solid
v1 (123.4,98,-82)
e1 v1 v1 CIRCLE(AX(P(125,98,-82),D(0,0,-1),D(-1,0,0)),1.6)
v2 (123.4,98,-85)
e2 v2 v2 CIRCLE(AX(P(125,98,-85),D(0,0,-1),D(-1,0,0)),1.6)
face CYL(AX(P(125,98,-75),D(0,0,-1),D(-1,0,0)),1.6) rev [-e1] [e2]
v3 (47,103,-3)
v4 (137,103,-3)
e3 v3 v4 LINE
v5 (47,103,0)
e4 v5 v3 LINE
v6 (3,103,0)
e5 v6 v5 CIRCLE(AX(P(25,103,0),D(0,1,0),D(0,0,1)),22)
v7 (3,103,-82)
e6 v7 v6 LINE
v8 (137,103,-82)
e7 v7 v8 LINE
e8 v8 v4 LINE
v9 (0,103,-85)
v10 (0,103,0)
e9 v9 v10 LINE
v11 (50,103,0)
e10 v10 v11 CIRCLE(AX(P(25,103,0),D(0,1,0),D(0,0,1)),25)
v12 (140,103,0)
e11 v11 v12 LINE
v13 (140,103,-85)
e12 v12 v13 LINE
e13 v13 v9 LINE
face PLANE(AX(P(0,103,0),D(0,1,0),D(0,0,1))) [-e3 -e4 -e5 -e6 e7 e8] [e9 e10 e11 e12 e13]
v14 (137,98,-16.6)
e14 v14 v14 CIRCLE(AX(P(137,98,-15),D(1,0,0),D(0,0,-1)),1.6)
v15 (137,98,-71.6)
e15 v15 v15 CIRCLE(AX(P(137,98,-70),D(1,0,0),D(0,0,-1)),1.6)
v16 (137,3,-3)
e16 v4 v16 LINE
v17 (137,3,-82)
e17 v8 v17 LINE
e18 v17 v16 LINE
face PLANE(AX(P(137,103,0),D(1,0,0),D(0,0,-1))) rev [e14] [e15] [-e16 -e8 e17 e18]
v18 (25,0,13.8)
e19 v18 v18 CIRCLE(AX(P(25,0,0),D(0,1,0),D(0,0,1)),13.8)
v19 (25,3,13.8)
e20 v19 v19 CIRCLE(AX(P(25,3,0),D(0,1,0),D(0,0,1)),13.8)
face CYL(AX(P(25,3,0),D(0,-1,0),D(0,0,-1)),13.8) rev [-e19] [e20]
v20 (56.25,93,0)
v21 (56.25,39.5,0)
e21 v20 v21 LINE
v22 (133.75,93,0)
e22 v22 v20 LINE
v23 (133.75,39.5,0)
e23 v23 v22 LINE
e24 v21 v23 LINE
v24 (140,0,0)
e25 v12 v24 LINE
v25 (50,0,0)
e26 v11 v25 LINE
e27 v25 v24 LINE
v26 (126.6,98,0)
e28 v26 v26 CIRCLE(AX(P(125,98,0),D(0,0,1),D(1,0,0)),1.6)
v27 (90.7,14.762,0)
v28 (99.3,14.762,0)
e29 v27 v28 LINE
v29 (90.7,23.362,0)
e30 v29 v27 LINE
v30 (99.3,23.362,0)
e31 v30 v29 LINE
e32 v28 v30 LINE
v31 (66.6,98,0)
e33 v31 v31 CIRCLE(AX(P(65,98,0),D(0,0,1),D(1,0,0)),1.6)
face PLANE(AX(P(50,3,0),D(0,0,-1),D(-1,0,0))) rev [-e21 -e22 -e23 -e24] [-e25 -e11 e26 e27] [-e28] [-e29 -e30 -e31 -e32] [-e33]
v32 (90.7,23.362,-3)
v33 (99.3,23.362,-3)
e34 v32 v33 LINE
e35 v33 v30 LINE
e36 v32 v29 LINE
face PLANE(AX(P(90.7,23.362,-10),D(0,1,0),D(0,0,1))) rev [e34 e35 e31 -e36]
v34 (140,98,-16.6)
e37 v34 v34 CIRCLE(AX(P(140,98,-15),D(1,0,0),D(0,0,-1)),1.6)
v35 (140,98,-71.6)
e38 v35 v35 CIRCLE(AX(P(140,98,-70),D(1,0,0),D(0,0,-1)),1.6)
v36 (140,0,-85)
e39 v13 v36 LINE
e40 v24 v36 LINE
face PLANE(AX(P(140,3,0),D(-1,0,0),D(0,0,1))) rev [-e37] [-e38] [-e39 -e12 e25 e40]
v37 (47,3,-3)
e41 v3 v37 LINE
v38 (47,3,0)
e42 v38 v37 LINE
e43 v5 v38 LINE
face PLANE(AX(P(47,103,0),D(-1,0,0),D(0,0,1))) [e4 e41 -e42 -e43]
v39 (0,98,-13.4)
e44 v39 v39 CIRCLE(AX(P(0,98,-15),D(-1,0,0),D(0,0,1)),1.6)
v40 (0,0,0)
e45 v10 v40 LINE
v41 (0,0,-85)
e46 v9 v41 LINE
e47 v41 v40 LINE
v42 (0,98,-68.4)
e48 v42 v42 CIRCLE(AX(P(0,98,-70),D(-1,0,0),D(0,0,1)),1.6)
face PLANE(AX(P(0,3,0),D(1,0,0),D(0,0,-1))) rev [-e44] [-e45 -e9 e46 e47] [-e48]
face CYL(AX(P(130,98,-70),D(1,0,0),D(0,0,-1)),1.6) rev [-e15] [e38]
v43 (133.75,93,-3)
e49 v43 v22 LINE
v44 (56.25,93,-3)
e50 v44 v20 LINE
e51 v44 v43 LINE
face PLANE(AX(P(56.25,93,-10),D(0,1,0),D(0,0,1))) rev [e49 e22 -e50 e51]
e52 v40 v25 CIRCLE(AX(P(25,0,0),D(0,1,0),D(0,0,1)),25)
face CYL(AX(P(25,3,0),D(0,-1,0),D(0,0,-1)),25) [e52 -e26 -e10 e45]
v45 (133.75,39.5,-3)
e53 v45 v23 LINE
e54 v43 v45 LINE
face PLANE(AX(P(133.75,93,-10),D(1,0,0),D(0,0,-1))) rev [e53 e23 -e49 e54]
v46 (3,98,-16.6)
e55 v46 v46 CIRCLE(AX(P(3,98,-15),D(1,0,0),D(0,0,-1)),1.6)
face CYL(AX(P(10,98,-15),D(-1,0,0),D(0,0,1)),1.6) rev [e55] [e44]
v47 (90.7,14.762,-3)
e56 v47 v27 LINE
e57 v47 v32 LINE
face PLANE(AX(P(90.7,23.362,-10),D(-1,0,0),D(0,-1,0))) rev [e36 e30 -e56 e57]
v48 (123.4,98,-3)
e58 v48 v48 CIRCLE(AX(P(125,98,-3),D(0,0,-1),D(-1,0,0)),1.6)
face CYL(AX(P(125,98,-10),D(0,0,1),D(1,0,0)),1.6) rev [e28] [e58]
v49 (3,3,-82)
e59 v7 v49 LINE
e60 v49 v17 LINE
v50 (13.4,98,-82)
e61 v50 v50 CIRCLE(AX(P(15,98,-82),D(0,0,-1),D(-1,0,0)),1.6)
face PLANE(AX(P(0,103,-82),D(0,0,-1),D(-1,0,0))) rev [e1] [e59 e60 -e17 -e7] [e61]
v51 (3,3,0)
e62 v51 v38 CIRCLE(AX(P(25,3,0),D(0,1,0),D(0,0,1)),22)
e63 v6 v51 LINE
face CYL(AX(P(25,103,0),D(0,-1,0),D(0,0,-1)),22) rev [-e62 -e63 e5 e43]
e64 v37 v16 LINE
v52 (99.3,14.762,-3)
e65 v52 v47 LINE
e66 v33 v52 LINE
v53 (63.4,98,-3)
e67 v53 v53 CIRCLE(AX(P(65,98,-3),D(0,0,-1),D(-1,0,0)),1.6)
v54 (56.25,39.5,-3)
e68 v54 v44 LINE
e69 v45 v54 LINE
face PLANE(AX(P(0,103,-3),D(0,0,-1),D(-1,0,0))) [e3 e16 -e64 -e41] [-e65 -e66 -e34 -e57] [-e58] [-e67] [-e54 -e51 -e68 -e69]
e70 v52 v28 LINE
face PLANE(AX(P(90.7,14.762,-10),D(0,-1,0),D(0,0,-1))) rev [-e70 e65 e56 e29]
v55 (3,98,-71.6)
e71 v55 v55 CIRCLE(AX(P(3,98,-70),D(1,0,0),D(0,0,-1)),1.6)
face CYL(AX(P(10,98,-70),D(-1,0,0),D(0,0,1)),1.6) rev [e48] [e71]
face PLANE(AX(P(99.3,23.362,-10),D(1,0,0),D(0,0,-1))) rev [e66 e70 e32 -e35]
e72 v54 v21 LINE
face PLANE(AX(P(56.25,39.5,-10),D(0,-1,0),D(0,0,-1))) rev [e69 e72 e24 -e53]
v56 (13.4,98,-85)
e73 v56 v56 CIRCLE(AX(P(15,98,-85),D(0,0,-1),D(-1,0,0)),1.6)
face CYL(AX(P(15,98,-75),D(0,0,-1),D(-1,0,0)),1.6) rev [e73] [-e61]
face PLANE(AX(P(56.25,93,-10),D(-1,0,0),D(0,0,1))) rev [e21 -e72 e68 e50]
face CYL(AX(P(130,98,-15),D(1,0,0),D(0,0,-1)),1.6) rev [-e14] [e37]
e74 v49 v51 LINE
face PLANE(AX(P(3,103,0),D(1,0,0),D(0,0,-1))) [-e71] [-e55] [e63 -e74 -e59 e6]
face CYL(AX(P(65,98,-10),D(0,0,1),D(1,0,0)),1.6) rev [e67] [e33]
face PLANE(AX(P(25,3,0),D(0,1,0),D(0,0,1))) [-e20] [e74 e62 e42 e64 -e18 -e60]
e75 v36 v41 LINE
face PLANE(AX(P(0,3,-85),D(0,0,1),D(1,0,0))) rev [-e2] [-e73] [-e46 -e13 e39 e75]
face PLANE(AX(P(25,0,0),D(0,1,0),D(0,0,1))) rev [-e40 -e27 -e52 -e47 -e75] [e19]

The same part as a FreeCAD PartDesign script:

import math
import FreeCAD as App
import Part
import Sketcher
from FreeCAD import Vector
Q = App.Units.Quantity


def add_polygon(sketch, points):
    """Adds a closed chain of lines whose ends are joined by coincident constraints."""
    first, n = sketch.GeometryCount, len(points)
    for a, b in zip(points, points[1:] + points[:1]):
        sketch.addGeometry(Part.LineSegment(App.Vector(*a, 0), App.Vector(*b, 0)), False)
    for i in range(n):
        sketch.addConstraint(Sketcher.Constraint("Coincident", first + i, 2, first + (i + 1) % n, 1))

doc = App.newDocument("Part")
body = doc.addObject("PartDesign::Body", "Body")

# Sketch on XZ plane
sketch1 = body.newObject("Sketcher::SketchObject", "Sketch")
sketch1.AttachmentSupport = (doc.getObject("XZ_Plane"), [""])
sketch1.MapMode = "FlatFace"
sketch1.addGeometry([
    Part.LineSegment(Vector(50, 0, 0), Vector(140, 0, 0)),  # 0
    Part.LineSegment(Vector(140, 0, 0), Vector(140, -85, 0)),  # 1
    Part.LineSegment(Vector(140, -85, 0), Vector(0, -85, 0)),  # 2
    Part.LineSegment(Vector(0, -85, 0), Vector(0, 0, 0)),  # 3
    Part.ArcOfCircle(Part.Circle(Vector(25, 0, 0), Vector(0, 0, 1), 25), math.radians(0), math.radians(180)),  # 4
    Part.Circle(Vector(25, 0, 0), Vector(0, 0, 1), 14),  # 5
], False)
sketch1.addConstraint([
    Sketcher.Constraint("Coincident", 0, 2, 1, 1),
    Sketcher.Constraint("Coincident", 1, 2, 2, 1),
    Sketcher.Constraint("Coincident", 2, 2, 3, 1),
    Sketcher.Constraint("Tangent", 3, 2, 4, 2),
    Sketcher.Constraint("Coincident", 4, 1, 0, 1),
    Sketcher.Constraint("Horizontal", 0),
    Sketcher.Constraint("Vertical", 1),
    Sketcher.Constraint("Horizontal", 2),
    Sketcher.Constraint("Vertical", 3),
    Sketcher.Constraint("Coincident", 3, 2, -1, 1),
    Sketcher.Constraint("Coincident", 5, 3, 4, 3),
    Sketcher.Constraint("PointOnObject", 0, 2, -1),
    Sketcher.Constraint("Radius", 4, Q("25 mm")),
    Sketcher.Constraint("Diameter", 5, Q("27.6 mm")),
    Sketcher.Constraint("DistanceX", 0, 1, 0, 2, Q("90 mm")),
    Sketcher.Constraint("DistanceY", 1, 2, 1, 1, Q("85 mm")),
])
pad1 = body.newObject("PartDesign::Pad", "Pad")
pad1.Profile = sketch1
pad1.Length = 3
pad1.Reversed = True

# Sketch on XZ plane
sketch2 = body.newObject("Sketcher::SketchObject", "Sketch001")
sketch2.AttachmentSupport = (doc.getObject("XZ_Plane"), [""])
sketch2.MapMode = "FlatFace"
sketch2.AttachmentOffset = App.Placement(Vector(0, 0, -3), App.Rotation())
sketch2.addGeometry([
    Part.LineSegment(Vector(140, -85, 0), Vector(0, -85, 0)),  # 0
    Part.LineSegment(Vector(0, -85, 0), Vector(0, 0, 0)),  # 1
    Part.ArcOfCircle(Part.Circle(Vector(25, 0, 0), Vector(0, 0, 1), 25), math.radians(0), math.radians(180)),  # 2
    Part.LineSegment(Vector(50, 0, 0), Vector(140, 0, 0)),  # 3
    Part.LineSegment(Vector(140, 0, 0), Vector(140, -85, 0)),  # 4
    Part.ArcOfCircle(Part.Circle(Vector(25, 0, 0), Vector(0, 0, 1), 22), math.radians(0), math.radians(180)),  # 5
    Part.LineSegment(Vector(3, 0, 0), Vector(3, -82, 0)),  # 6
    Part.LineSegment(Vector(3, -82, 0), Vector(137, -82, 0)),  # 7
    Part.LineSegment(Vector(137, -82, 0), Vector(137, -3, 0)),  # 8
    Part.LineSegment(Vector(137, -3, 0), Vector(47, -3, 0)),  # 9
    Part.LineSegment(Vector(47, -3, 0), Vector(47, 0, 0)),  # 10
], False)
sketch2.addConstraint([
    Sketcher.Constraint("Coincident", 0, 2, 1, 1),
    Sketcher.Constraint("Tangent", 1, 2, 2, 2),
    Sketcher.Constraint("Coincident", 2, 1, 3, 1),
    Sketcher.Constraint("Coincident", 3, 2, 4, 1),
    Sketcher.Constraint("Coincident", 4, 2, 0, 1),
    Sketcher.Constraint("Tangent", 5, 2, 6, 1),
    Sketcher.Constraint("Coincident", 6, 2, 7, 1),
    Sketcher.Constraint("Coincident", 7, 2, 8, 1),
    Sketcher.Constraint("Coincident", 8, 2, 9, 1),
    Sketcher.Constraint("Coincident", 9, 2, 10, 1),
    Sketcher.Constraint("Tangent", 10, 2, 5, 1),
    Sketcher.Constraint("Horizontal", 0),
    Sketcher.Constraint("Vertical", 1),
    Sketcher.Constraint("Horizontal", 3),
    Sketcher.Constraint("Vertical", 4),
    Sketcher.Constraint("Vertical", 6),
    Sketcher.Constraint("Horizontal", 7),
    Sketcher.Constraint("Vertical", 8),
    Sketcher.Constraint("Horizontal", 9),
    Sketcher.Constraint("Vertical", 10),
    Sketcher.Constraint("Coincident", 1, 2, -1, 1),
    Sketcher.Constraint("Coincident", 5, 3, 2, 3),
    Sketcher.Constraint("PointOnObject", 2, 1, -1),
    Sketcher.Constraint("Equal", 3, 9),
    Sketcher.Constraint("Radius", 2, Q("25 mm")),
    Sketcher.Constraint("Radius", 5, Q("22 mm")),
    Sketcher.Constraint("DistanceX", 0, 2, 0, 1, Q("140 mm")),
    Sketcher.Constraint("DistanceY", 1, 1, 1, 2, Q("85 mm")),
    Sketcher.Constraint("DistanceY", 6, 2, 6, 1, Q("82 mm")),
    Sketcher.Constraint("DistanceY", 8, 1, 8, 2, Q("79 mm")),
])
pad2 = body.newObject("PartDesign::Pad", "Pad001")
pad2.Profile = sketch2
pad2.Length = 100
pad2.Reversed = True

# Sketch on XY plane
sketch3 = body.newObject("Sketcher::SketchObject", "Sketch002")
sketch3.AttachmentSupport = (doc.getObject("XY_Plane"), [""])
sketch3.MapMode = "FlatFace"
add_polygon(sketch3, [(56, 93), (56, 40), (134, 40), (134, 93)])  # lines 0-3
sketch3.addConstraint([
    Sketcher.Constraint("Vertical", 0),
    Sketcher.Constraint("Horizontal", 1),
    Sketcher.Constraint("Vertical", 2),
    Sketcher.Constraint("Horizontal", 3),
    Sketcher.Constraint("DistanceX", 1, 1, 1, 2, Q("77.5 mm")),
    Sketcher.Constraint("DistanceY", 0, 2, 0, 1, Q("53.5 mm")),
    Sketcher.Constraint("DistanceY", -1, 1, 2, 2, Q("93 mm")),
    Sketcher.Constraint("DistanceX", -1, 1, 0, 2, Q("56.25 mm")),
])
pocket1 = body.newObject("PartDesign::Pocket", "Pocket")
pocket1.Profile = sketch3
pocket1.Length = 10

# Sketch on XY plane
sketch4 = body.newObject("Sketcher::SketchObject", "Sketch003")
sketch4.AttachmentSupport = (doc.getObject("XY_Plane"), [""])
sketch4.MapMode = "FlatFace"
add_polygon(sketch4, [(91, 23), (91, 15), (99, 15), (99, 23)])  # lines 0-3
sketch4.addConstraint([
    Sketcher.Constraint("Vertical", 0),
    Sketcher.Constraint("Horizontal", 1),
    Sketcher.Constraint("Vertical", 2),
    Sketcher.Constraint("Horizontal", 3),
    Sketcher.Constraint("Equal", 3, 0),
    Sketcher.Constraint("DistanceX", 1, 1, 1, 2, Q("8.6 mm")),
    Sketcher.Constraint("DistanceX", -1, 1, 0, 2, Q("90.7 mm")),
    Sketcher.Constraint("DistanceY", -1, 1, 0, 2, Q("14.762 mm")),
])
pocket2 = body.newObject("PartDesign::Pocket", "Pocket001")
pocket2.Profile = sketch4
pocket2.Length = 10

# Sketch on XY plane
sketch5 = body.newObject("Sketcher::SketchObject", "Sketch004")
sketch5.AttachmentSupport = (doc.getObject("XY_Plane"), [""])
sketch5.MapMode = "FlatFace"
sketch5.addGeometry([
    Part.Circle(Vector(65, 98, 0), Vector(0, 0, 1), 1.6),
    Part.Circle(Vector(125, 98, 0), Vector(0, 0, 1), 1.6),
], False)
sketch5.addConstraint([
    Sketcher.Constraint("Equal", 0, 1),
    Sketcher.Constraint("Horizontal", 0, 3, 1, 3),
    Sketcher.Constraint("Diameter", 0, Q("3.2 mm")),
    Sketcher.Constraint("DistanceX", -1, 1, 0, 3, Q("65 mm")),
    Sketcher.Constraint("DistanceY", -1, 1, 0, 3, Q("98 mm")),
    Sketcher.Constraint("DistanceX", -1, 1, 1, 3, Q("125 mm")),
])
pocket3 = body.newObject("PartDesign::Pocket", "Pocket002")
pocket3.Profile = sketch5
pocket3.Length = 10

# Sketch on YZ plane
sketch6 = body.newObject("Sketcher::SketchObject", "Sketch005")
sketch6.AttachmentSupport = (doc.getObject("YZ_Plane"), [""])
sketch6.MapMode = "FlatFace"
sketch6.AttachmentOffset = App.Placement(Vector(0, 0, 140), App.Rotation())
sketch6.addGeometry([
    Part.Circle(Vector(98, -15, 0), Vector(0, 0, 1), 1.6),
    Part.Circle(Vector(98, -70, 0), Vector(0, 0, 1), 1.6),
], False)
sketch6.addConstraint([
    Sketcher.Constraint("Equal", 0, 1),
    Sketcher.Constraint("Vertical", 0, 3, 1, 3),
    Sketcher.Constraint("Diameter", 0, Q("3.2 mm")),
    Sketcher.Constraint("DistanceX", -1, 1, 0, 3, Q("98 mm")),
    Sketcher.Constraint("DistanceY", 0, 3, -1, 1, Q("15 mm")),
    Sketcher.Constraint("DistanceY", 1, 3, -1, 1, Q("70 mm")),
])
pocket4 = body.newObject("PartDesign::Pocket", "Pocket003")
pocket4.Profile = sketch6
pocket4.Length = 10

# Sketch on XY plane
sketch7 = body.newObject("Sketcher::SketchObject", "Sketch006")
sketch7.AttachmentSupport = (doc.getObject("XY_Plane"), [""])
sketch7.MapMode = "FlatFace"
sketch7.AttachmentOffset = App.Placement(Vector(0, 0, -75), App.Rotation())
sketch7.addGeometry([
    Part.Circle(Vector(125, 98, 0), Vector(0, 0, 1), 1.6),
    Part.Circle(Vector(15, 98, 0), Vector(0, 0, 1), 1.6),
], False)
sketch7.addConstraint([
    Sketcher.Constraint("Equal", 0, 1),
    Sketcher.Constraint("Horizontal", 0, 3, 1, 3),
    Sketcher.Constraint("Diameter", 0, Q("3.2 mm")),
    Sketcher.Constraint("DistanceX", -1, 1, 0, 3, Q("125 mm")),
    Sketcher.Constraint("DistanceY", -1, 1, 0, 3, Q("98 mm")),
    Sketcher.Constraint("DistanceX", -1, 1, 1, 3, Q("15 mm")),
])
pocket5 = body.newObject("PartDesign::Pocket", "Pocket004")
pocket5.Profile = sketch7
pocket5.Length = 10

# Sketch on YZ plane
sketch8 = body.newObject("Sketcher::SketchObject", "Sketch007")
sketch8.AttachmentSupport = (doc.getObject("YZ_Plane"), [""])
sketch8.MapMode = "FlatFace"
sketch8.AttachmentOffset = App.Placement(Vector(0, 0, 10), App.Rotation())
sketch8.addGeometry([
    Part.Circle(Vector(98, -70, 0), Vector(0, 0, 1), 1.6),
    Part.Circle(Vector(98, -15, 0), Vector(0, 0, 1), 1.6),
], False)
sketch8.addConstraint([
    Sketcher.Constraint("Equal", 0, 1),
    Sketcher.Constraint("Vertical", 0, 3, 1, 3),
    Sketcher.Constraint("Diameter", 0, Q("3.2 mm")),
    Sketcher.Constraint("DistanceX", -1, 1, 0, 3, Q("98 mm")),
    Sketcher.Constraint("DistanceY", 0, 3, -1, 1, Q("70 mm")),
    Sketcher.Constraint("DistanceY", 1, 3, -1, 1, Q("15 mm")),
])
pocket6 = body.newObject("PartDesign::Pocket", "Pocket005")
pocket6.Profile = sketch8
pocket6.Length = 10

doc.recompute()
